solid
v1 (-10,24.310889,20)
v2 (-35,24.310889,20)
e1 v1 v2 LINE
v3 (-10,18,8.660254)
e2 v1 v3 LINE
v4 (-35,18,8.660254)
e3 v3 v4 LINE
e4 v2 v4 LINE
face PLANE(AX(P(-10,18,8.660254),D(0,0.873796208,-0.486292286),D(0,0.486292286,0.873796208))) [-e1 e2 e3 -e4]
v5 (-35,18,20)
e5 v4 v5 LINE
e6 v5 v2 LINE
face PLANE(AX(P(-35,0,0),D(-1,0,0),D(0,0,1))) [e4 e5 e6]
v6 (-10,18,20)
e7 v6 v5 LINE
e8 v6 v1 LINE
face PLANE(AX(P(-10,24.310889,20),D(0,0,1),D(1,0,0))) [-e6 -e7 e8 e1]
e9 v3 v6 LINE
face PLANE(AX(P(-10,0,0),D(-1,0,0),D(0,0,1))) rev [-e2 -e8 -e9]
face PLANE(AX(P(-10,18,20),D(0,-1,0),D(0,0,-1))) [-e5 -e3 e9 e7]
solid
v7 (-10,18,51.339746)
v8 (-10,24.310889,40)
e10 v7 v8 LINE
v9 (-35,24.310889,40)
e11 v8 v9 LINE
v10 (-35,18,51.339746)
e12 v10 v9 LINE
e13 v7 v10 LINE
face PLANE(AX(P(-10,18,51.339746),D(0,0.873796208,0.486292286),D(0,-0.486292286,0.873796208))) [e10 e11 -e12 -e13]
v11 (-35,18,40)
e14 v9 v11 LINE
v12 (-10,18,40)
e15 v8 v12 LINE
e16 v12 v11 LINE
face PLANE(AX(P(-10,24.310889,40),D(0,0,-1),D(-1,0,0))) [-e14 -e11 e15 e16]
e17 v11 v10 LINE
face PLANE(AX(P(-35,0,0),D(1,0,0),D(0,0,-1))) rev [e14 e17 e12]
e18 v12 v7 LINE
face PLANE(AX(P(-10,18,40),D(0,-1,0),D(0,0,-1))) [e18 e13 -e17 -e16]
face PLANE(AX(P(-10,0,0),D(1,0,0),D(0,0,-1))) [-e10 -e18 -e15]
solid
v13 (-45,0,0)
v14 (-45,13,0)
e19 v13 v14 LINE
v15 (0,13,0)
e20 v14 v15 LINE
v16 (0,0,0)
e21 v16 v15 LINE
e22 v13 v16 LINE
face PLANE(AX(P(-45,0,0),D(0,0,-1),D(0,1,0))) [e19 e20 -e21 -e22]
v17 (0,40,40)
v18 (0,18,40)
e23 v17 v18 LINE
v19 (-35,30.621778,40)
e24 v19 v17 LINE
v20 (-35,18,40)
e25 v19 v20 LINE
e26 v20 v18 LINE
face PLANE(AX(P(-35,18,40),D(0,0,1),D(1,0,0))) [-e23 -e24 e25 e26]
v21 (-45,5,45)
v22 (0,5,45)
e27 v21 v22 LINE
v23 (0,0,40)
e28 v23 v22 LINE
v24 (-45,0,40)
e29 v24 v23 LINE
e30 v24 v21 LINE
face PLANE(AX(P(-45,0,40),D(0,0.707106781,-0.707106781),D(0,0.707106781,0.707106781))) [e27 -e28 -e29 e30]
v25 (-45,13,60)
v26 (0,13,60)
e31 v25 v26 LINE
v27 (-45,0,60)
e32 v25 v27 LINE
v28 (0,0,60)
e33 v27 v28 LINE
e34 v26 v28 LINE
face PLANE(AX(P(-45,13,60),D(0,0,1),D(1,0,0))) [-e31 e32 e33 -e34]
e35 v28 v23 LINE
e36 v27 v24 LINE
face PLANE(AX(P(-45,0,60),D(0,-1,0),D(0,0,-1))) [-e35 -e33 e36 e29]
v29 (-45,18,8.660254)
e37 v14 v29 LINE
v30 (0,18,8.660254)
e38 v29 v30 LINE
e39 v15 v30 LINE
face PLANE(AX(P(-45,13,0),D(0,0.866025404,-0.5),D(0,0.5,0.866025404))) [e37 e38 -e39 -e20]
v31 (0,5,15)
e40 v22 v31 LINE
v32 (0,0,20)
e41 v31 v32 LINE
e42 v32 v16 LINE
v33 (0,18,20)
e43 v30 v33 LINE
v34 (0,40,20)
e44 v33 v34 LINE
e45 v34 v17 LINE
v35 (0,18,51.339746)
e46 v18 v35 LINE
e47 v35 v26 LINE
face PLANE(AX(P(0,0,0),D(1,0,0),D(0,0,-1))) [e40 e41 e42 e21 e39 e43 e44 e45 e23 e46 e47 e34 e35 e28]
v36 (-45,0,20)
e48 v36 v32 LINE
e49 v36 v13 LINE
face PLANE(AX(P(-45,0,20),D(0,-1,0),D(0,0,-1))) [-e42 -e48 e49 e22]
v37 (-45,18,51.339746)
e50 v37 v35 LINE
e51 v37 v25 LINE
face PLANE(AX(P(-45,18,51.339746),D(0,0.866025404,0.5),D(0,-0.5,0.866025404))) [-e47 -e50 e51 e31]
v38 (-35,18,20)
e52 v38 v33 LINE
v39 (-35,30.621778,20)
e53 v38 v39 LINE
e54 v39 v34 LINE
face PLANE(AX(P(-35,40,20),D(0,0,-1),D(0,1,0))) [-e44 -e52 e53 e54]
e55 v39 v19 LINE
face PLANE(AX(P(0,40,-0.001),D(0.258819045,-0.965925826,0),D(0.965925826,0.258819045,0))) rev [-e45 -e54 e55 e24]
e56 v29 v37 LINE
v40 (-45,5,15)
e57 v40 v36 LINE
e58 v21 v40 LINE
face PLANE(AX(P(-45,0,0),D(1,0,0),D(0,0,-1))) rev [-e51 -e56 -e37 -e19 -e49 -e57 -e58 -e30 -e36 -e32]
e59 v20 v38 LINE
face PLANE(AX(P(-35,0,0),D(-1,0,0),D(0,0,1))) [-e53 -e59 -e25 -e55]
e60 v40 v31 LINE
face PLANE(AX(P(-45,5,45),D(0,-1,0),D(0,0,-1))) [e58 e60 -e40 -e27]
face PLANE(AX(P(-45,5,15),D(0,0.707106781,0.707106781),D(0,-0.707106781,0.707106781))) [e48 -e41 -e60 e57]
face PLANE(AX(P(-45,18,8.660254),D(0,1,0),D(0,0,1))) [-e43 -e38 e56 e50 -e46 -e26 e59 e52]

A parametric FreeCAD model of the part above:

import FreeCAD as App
import Part
import Sketcher
Q = App.Units.Quantity


def add_polygon(sketch, points):
    """Adds a closed chain of lines whose ends are joined by coincident constraints."""
    first, n = sketch.GeometryCount, len(points)
    for a, b in zip(points, points[1:] + points[:1]):
        sketch.addGeometry(Part.LineSegment(App.Vector(*a, 0), App.Vector(*b, 0)), False)
    for i in range(n):
        sketch.addConstraint(Sketcher.Constraint("Coincident", first + i, 2, first + (i + 1) % n, 1))

doc = App.newDocument("Part")
body = doc.addObject("PartDesign::Body", "Body")

sketch1 = body.newObject("Sketcher::SketchObject", "Sketch")
sketch1.AttachmentSupport = (doc.getObject("YZ_Plane"), [""])
sketch1.MapMode = "FlatFace"
add_polygon(sketch1, [(0, 40), (5, 45), (5, 15), (0, 20), (0, 0), (13, 0), (18, 8.660254), (18, 51.339746), (13, 60), (0, 60)])
sketch1.addConstraint([
    Sketcher.Constraint("Vertical", 1),
    Sketcher.Constraint("Vertical", 3),
    Sketcher.Constraint("Horizontal", 4),
    Sketcher.Constraint("Vertical", 6),
    Sketcher.Constraint("Horizontal", 8),
    Sketcher.Constraint("Vertical", 9),
    Sketcher.Constraint("Coincident", 3, 2, -1, 1),
    Sketcher.Constraint("PointOnObject", 8, 2, -2),
    Sketcher.Constraint("Perpendicular", 0, 2),
    Sketcher.Constraint("Vertical", 4, 2, 7, 2),
    Sketcher.Constraint("Equal", 3, 9),
    Sketcher.Constraint("Equal", 0, 2),
    Sketcher.Constraint("Equal", 5, 7),
    Sketcher.Constraint("DistanceX", 4, 1, 4, 2, 13.0),
    Sketcher.Constraint("DistanceY", 1, 2, 1, 1, 30.0),
    Sketcher.Constraint("DistanceY", 3, 2, 3, 1, 20.0),
    Sketcher.Constraint("Angle", 5, Q("60 deg")),
    Sketcher.Constraint("Distance", 5, 10.0),
    Sketcher.Constraint("DistanceX", -1, 1, 0, 2, 5.0),
])
pad1 = body.newObject("PartDesign::Pad", "Pad")
pad1.Profile = sketch1
pad1.Length = 45
pad1.Reversed = True

sketch2 = body.newObject("Sketcher::SketchObject", "Sketch001")
sketch2.AttachmentSupport = (doc.getObject("YZ_Plane"), [""])
sketch2.MapMode = "FlatFace"
add_polygon(sketch2, [(40, 40), (18, 40), (18, 20), (40, 20)])
sketch2.addConstraint([
    Sketcher.Constraint("Horizontal", 0),
    Sketcher.Constraint("Vertical", 1),
    Sketcher.Constraint("Horizontal", 2),
    Sketcher.Constraint("Vertical", 3),
    Sketcher.Constraint("DistanceX", 0, 2, 0, 1, 22.0),
    Sketcher.Constraint("DistanceY", 1, 2, 1, 1, 20.0),
    Sketcher.Constraint("DistanceX", -1, 1, 0, 2, 18.0),
    Sketcher.Constraint("DistanceY", -1, 1, 0, 2, 40.0),
])
pad2 = body.newObject("PartDesign::Pad", "Pad001")
pad2.Profile = sketch2
pad2.Length = 35
pad2.Reversed = True

sketch3 = body.newObject("Sketcher::SketchObject", "Sketch002")
sketch3.AttachmentSupport = (doc.getObject("XY_Plane"), [""])
sketch3.MapMode = "FlatFace"
sketch3.AttachmentOffset = App.Placement(App.Vector(0, 0, 40), App.Rotation())
add_polygon(sketch3, [(-35, 30.621778), (0, 40), (-35, 40)])
sketch3.addConstraint([
    Sketcher.Constraint("Horizontal", 1),
    Sketcher.Constraint("Vertical", 2),
    Sketcher.Constraint("PointOnObject", 0, 2, -2),
    Sketcher.Constraint("DistanceX", 1, 2, 1, 1, 35.0),
    Sketcher.Constraint("Angle", 0, Q("15 deg")),
    Sketcher.Constraint("DistanceY", -1, 1, 0, 2, 40.0),
])
pocket1 = body.newObject("PartDesign::Pocket", "Pocket")
pocket1.Profile = sketch3
pocket1.Type = "UpToFirst"
body2 = doc.addObject("PartDesign::Body", "Body001")

sketch4 = body2.newObject("Sketcher::SketchObject", "Sketch003")
sketch4.AttachmentSupport = (doc.getObject("YZ_Plane001"), [""])
sketch4.MapMode = "FlatFace"
sketch4.AttachmentOffset = App.Placement(App.Vector(0, 0, -35), App.Rotation())
add_polygon(sketch4, [(24.310889, 20), (18, 8.660254), (18, 20)])
sketch4.addConstraint([
    Sketcher.Constraint("Vertical", 1),
    Sketcher.Constraint("Horizontal", 2),
    Sketcher.Constraint("DistanceX", -1, 1, 0, 2, 18.0),
    Sketcher.Constraint("DistanceY", -1, 1, 1, 2, 20.0),
    Sketcher.Constraint("DistanceX", 2, 1, 2, 2, 6.310889),
    Sketcher.Constraint("DistanceY", 1, 1, 1, 2, 11.339746),
])
pad3 = body2.newObject("PartDesign::Pad", "Pad002")
pad3.Profile = sketch4
pad3.Length = 25
body3 = doc.addObject("PartDesign::Body", "Body002")

sketch5 = body3.newObject("Sketcher::SketchObject", "Sketch004")
sketch5.AttachmentSupport = (doc.getObject("YZ_Plane002"), [""])
sketch5.MapMode = "FlatFace"
sketch5.AttachmentOffset = App.Placement(App.Vector(0, 0, -35), App.Rotation())
add_polygon(sketch5, [(18, 51.339746), (24.310889, 40), (18, 40)])
sketch5.addConstraint([
    Sketcher.Constraint("Horizontal", 1),
    Sketcher.Constraint("Vertical", 2),
    Sketcher.Constraint("DistanceY", -1, 1, 0, 2, 40.0),
    Sketcher.Constraint("DistanceX", -1, 1, 1, 2, 18.0),
    Sketcher.Constraint("DistanceX", 1, 2, 1, 1, 6.310889),
    Sketcher.Constraint("DistanceY", 2, 1, 2, 2, 11.339746),
])
pad4 = body3.newObject("PartDesign::Pad", "Pad003")
pad4.Profile = sketch5
pad4.Length = 25

doc.recompute()
